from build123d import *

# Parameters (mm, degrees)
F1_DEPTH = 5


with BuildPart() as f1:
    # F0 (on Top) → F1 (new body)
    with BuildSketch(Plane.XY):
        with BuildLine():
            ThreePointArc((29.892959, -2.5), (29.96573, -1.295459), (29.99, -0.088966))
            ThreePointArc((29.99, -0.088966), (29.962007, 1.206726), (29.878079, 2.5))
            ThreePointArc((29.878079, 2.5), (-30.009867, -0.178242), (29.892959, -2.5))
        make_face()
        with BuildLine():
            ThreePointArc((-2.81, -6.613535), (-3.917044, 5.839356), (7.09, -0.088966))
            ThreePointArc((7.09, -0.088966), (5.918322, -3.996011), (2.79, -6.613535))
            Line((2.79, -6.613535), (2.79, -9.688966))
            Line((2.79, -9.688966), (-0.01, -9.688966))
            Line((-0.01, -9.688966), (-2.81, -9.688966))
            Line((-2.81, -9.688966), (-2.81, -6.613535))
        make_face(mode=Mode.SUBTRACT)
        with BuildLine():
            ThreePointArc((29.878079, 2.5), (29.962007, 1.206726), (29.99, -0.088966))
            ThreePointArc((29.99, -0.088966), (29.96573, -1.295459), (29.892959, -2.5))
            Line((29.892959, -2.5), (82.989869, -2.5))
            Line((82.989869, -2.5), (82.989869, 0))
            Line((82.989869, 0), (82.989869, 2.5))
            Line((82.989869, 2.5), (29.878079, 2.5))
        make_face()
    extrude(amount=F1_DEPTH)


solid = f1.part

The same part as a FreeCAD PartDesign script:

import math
import FreeCAD as App
import Part
import Sketcher
from FreeCAD import Vector

doc = App.newDocument("Part")
body = doc.addObject("PartDesign::Body", "Body")

sketch1 = doc.addObject("Sketcher::SketchObject", "Sketch")
body.addObject(sketch1)
sketch1.AttachmentSupport = (doc.XY_Plane, [""])
sketch1.MapMode = "FlatFace"
sketch1.addGeometry([
    Part.ArcOfCircle(Part.Circle(Vector(0, -0.1, 0), Vector(0, 0, 1), 30), math.radians(5), math.radians(355)),
    Part.LineSegment(Vector(29.9, -2.5, 0), Vector(83, -2.5, 0)),
    Part.LineSegment(Vector(83, -2.5, 0), Vector(83, 2.5, 0)),
    Part.LineSegment(Vector(83, 2.5, 0), Vector(29.9, 2.5, 0)),
    Part.LineSegment(Vector(-2.8, -9.7, 0), Vector(-2.8, -6.6, 0)),
    Part.ArcOfCircle(Part.Circle(Vector(0, -0.1, 0), Vector(0, 0, 1), 7.1), math.radians(0), math.radians(247)),
    Part.ArcOfCircle(Part.Circle(Vector(0, -0.1, 0), Vector(0, 0, 1), 7.1), math.radians(-67), math.radians(0)),
    Part.LineSegment(Vector(2.8, -6.6, 0), Vector(2.8, -9.7, 0)),
    Part.LineSegment(Vector(2.8, -9.7, 0), Vector(-2.8, -9.7, 0)),
], False)
sketch1.addConstraint([
    Sketcher.Constraint("Coincident", 0, 2, 1, 1),
    Sketcher.Constraint("Coincident", 1, 2, 2, 1),
    Sketcher.Constraint("Coincident", 2, 2, 3, 1),
    Sketcher.Constraint("Coincident", 3, 2, 0, 1),
    Sketcher.Constraint("Coincident", 4, 2, 5, 2),
    Sketcher.Constraint("Tangent", 5, 1, 6, 2),
    Sketcher.Constraint("Coincident", 6, 1, 7, 1),
    Sketcher.Constraint("Coincident", 7, 2, 8, 1),
    Sketcher.Constraint("Coincident", 8, 2, 4, 1),
    Sketcher.Constraint("Horizontal", 1),
    Sketcher.Constraint("Vertical", 2),
    Sketcher.Constraint("Horizontal", 3),
    Sketcher.Constraint("Vertical", 4),
    Sketcher.Constraint("Vertical", 7),
    Sketcher.Constraint("Horizontal", 8),
    Sketcher.Constraint("Coincident", 5, 3, 0, 3),
    Sketcher.Constraint("Equal", 5, 6),
    Sketcher.Constraint("Horizontal", 6, 3, 5, 1),
    Sketcher.Constraint("Horizontal", 4, 2, 6, 1),
    Sketcher.Constraint("Radius", 0, 30.0),
    Sketcher.Constraint("Radius", 5, 7.1),
    Sketcher.Constraint("DistanceY", 2, 1, 2, 2, 5.0),
    Sketcher.Constraint("DistanceX", 8, 2, 8, 1, 5.6),
    Sketcher.Constraint("DistanceY", 0, 2, -1, 1, 2.5),
    Sketcher.Constraint("DistanceY", 7, 2, 6, 3, 9.599999),
    Sketcher.Constraint("DistanceX", 0, 3, -1, 1, 0.01),
    Sketcher.Constraint("DistanceX", 1, 1, 1, 2, 53.09691),
    Sketcher.Constraint("DistanceX", 3, 2, 3, 1, 53.11179),
])
pad1 = doc.addObject("PartDesign::Pad", "Pad")
body.addObject(pad1)
pad1.Profile = sketch1
pad1.Length = 5

doc.recompute()
